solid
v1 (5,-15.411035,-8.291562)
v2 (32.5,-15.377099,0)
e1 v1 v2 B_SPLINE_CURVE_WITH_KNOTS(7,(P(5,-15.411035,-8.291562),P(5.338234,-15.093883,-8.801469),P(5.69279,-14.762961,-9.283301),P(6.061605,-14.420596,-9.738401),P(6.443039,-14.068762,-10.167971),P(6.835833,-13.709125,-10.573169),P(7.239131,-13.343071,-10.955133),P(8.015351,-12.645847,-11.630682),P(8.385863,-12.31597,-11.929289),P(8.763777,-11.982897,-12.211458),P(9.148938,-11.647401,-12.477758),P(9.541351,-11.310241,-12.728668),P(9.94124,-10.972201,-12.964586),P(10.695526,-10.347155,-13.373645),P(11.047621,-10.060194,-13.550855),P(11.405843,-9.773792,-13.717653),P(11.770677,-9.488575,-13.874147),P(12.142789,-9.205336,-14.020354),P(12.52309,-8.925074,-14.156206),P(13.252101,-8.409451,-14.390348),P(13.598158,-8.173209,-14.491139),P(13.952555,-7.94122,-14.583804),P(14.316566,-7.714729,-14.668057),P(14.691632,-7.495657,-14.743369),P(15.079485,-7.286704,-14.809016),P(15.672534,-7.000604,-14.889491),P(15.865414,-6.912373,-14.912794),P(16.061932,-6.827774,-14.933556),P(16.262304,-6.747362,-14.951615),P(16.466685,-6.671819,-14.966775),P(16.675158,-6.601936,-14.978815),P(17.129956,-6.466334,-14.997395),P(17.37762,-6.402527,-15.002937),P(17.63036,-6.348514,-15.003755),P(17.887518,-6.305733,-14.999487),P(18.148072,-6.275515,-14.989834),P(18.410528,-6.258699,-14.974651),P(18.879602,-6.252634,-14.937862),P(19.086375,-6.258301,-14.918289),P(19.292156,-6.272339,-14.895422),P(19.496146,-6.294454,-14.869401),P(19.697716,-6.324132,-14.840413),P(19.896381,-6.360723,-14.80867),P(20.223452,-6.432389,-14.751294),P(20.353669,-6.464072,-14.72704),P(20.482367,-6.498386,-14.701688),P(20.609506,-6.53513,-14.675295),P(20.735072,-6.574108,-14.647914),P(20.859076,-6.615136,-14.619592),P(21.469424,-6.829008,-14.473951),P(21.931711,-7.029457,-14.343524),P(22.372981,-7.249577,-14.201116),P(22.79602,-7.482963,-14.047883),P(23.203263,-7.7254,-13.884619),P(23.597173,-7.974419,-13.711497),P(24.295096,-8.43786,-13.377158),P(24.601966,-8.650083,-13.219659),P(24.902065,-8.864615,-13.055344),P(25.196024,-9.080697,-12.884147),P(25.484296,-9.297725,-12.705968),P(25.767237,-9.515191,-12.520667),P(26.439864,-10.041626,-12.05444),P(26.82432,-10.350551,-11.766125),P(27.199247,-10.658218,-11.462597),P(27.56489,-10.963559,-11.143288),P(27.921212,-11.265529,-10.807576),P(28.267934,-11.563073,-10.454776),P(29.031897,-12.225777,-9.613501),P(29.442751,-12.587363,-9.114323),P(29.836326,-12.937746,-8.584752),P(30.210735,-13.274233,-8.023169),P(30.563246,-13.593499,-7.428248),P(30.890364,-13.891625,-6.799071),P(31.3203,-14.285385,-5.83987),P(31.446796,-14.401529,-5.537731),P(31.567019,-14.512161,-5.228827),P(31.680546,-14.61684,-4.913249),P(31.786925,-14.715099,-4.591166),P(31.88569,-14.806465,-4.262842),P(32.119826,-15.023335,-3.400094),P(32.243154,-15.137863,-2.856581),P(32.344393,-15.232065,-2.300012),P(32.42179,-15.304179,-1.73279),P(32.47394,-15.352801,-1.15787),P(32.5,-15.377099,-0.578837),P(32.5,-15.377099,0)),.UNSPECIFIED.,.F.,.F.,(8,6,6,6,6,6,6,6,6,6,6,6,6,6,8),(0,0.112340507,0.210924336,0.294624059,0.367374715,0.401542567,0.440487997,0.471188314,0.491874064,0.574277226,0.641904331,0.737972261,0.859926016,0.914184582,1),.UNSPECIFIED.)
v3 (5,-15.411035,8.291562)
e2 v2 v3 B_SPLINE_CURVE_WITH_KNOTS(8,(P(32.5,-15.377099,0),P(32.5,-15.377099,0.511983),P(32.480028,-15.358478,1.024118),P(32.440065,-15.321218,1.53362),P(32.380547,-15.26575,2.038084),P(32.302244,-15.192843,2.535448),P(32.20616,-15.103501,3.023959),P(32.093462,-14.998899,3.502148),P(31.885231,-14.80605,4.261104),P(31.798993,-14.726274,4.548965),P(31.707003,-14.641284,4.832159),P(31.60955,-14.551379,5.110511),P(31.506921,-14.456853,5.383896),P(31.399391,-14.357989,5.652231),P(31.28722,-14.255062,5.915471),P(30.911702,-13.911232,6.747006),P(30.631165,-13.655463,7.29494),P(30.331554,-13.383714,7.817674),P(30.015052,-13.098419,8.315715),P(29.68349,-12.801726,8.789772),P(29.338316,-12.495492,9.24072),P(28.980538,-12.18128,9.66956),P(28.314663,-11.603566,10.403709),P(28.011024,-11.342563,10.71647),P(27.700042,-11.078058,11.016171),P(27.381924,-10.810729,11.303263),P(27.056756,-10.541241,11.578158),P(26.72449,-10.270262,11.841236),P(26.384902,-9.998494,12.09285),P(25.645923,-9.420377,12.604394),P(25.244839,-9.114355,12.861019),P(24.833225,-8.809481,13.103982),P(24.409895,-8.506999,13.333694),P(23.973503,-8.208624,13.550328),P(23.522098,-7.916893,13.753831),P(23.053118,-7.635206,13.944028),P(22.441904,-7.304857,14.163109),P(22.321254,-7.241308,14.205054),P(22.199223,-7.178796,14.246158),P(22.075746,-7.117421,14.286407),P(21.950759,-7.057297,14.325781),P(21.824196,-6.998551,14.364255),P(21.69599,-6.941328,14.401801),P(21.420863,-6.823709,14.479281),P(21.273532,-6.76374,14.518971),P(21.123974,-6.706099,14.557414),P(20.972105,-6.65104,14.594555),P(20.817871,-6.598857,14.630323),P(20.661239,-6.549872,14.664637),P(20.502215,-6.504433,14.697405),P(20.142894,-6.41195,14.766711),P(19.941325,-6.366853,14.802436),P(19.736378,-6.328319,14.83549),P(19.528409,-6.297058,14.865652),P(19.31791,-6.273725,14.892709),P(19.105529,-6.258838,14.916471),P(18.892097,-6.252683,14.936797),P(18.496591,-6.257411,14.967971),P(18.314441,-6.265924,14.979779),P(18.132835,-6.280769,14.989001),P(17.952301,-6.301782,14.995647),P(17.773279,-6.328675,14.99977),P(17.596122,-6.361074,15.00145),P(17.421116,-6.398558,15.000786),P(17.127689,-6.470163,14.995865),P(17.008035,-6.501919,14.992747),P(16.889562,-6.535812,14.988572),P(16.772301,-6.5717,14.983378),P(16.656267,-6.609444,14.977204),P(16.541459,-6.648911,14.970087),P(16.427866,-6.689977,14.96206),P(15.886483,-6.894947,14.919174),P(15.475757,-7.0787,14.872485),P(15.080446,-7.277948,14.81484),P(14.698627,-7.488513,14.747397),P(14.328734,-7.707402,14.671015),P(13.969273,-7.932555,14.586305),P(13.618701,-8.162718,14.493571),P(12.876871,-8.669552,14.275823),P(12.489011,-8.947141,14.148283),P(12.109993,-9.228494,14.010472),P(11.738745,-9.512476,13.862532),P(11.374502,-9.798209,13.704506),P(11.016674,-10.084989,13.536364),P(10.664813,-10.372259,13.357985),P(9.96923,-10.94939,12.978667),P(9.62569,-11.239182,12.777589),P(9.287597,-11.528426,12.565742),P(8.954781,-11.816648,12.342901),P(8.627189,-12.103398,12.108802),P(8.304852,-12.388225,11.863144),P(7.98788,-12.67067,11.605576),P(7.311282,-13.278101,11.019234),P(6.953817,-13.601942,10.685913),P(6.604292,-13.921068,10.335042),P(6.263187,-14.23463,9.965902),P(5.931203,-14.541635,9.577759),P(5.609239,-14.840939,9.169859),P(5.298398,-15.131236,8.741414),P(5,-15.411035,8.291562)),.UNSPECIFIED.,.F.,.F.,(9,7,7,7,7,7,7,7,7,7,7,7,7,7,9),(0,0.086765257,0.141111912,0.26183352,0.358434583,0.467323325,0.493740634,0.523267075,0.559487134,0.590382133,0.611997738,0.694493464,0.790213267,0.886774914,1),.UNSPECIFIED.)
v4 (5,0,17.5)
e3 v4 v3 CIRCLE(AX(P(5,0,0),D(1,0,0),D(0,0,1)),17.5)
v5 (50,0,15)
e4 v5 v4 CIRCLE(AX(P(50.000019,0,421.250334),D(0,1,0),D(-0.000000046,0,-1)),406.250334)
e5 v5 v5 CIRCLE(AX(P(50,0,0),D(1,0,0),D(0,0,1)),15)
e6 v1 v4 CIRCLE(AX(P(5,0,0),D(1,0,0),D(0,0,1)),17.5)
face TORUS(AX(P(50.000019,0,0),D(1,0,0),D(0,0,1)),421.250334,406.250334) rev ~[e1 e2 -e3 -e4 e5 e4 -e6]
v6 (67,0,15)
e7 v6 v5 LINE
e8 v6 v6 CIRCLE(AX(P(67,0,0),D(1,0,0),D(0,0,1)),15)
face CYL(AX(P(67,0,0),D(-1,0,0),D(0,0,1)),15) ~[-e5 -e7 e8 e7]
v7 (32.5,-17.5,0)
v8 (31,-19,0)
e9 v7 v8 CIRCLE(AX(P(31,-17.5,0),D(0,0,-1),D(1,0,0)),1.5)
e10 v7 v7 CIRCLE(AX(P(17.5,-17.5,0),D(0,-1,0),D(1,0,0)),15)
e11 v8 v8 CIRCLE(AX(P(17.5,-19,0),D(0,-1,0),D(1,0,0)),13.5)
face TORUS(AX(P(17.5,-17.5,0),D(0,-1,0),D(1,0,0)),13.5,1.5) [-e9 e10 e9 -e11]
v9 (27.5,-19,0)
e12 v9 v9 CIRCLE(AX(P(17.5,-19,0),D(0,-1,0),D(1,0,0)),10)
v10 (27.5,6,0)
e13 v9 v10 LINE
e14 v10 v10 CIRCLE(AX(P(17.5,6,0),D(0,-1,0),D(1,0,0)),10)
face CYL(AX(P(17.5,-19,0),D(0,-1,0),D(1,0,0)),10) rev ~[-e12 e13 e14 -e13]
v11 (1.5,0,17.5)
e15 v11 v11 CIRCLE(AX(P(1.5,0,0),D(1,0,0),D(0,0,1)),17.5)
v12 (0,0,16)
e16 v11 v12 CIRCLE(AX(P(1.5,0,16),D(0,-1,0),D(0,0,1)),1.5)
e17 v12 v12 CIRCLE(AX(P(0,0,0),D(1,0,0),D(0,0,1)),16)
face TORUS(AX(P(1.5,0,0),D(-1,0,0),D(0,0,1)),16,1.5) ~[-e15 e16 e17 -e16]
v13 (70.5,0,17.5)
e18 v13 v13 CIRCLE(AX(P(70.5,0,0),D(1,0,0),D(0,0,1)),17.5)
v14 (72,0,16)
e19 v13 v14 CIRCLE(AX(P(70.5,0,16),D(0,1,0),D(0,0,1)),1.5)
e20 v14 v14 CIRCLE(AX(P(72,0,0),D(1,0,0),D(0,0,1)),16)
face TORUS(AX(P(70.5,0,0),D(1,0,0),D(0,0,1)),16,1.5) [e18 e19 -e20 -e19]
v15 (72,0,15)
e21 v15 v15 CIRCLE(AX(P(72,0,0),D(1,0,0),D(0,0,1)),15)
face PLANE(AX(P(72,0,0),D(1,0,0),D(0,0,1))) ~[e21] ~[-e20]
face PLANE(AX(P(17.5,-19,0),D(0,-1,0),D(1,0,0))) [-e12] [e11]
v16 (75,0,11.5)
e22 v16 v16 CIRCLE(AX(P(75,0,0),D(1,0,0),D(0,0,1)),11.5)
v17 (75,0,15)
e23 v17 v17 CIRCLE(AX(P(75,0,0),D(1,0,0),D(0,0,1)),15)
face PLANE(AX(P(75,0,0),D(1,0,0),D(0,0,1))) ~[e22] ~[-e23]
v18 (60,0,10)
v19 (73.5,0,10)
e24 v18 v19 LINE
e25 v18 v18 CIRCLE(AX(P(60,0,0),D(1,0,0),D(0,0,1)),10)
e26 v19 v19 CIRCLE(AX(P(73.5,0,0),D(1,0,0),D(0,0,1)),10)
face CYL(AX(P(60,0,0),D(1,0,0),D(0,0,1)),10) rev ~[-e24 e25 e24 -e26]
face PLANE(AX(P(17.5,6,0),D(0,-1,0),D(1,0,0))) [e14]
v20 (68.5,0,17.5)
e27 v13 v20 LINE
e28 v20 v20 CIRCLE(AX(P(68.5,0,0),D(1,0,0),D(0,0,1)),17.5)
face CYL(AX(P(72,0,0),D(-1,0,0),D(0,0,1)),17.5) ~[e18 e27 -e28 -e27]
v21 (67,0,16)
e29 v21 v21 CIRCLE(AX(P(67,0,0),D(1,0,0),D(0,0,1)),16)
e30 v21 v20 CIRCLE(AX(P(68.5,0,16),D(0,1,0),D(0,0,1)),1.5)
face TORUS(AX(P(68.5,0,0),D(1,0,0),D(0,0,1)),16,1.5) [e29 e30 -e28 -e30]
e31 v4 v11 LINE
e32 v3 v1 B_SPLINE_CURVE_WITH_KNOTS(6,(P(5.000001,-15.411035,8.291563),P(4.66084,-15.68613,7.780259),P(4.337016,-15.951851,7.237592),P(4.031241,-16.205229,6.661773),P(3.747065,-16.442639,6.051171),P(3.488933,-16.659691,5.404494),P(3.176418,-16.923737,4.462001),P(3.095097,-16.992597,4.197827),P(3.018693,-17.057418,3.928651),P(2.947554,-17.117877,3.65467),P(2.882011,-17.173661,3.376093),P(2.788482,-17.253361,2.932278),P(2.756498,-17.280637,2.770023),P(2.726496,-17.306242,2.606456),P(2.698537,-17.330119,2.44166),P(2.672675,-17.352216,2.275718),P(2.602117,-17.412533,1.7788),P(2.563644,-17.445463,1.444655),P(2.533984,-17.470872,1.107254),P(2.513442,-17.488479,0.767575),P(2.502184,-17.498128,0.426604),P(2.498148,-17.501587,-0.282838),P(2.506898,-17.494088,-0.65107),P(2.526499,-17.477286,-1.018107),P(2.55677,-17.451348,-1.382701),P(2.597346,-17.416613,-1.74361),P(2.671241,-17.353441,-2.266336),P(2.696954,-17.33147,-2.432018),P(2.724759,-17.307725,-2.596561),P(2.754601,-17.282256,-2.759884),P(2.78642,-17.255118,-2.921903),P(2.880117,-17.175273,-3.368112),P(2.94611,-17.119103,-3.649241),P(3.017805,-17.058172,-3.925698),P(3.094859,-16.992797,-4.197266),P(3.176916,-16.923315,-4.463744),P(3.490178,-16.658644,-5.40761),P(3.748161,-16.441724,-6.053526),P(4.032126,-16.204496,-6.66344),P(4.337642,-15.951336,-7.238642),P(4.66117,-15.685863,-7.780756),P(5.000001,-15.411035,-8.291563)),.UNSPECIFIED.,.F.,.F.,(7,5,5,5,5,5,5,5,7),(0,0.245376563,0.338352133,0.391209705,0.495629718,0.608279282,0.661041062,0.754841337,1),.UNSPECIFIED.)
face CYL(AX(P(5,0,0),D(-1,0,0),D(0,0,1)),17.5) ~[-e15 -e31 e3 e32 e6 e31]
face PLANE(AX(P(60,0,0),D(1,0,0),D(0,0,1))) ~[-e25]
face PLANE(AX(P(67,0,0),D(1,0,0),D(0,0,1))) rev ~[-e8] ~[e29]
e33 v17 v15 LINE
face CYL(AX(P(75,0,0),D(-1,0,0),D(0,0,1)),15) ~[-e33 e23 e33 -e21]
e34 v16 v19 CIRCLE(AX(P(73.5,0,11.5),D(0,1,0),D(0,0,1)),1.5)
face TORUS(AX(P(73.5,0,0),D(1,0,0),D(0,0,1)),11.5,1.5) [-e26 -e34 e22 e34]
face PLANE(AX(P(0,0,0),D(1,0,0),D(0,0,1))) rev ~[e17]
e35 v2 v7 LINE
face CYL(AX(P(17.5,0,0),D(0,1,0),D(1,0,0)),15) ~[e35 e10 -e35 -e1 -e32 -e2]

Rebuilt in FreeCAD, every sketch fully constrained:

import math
import FreeCAD as App
import Part
import Sketcher

V = App.Vector
Q = App.Units.Quantity


def edges_at(feature, points):
    """Names of the edges that pass closest to the given points."""
    edges = feature.Shape.Edges
    near = lambda p: min(range(len(edges)), key=lambda i: edges[i].distToShape(Part.Vertex(*p))[0])
    return sorted({f"Edge{near(p) + 1}" for p in points})

doc = App.newDocument("Part")
params = doc.addObject("Spreadsheet::Sheet", "Params")
for row, (alias, value) in enumerate([
    ("sketch1_width", "60 mm"),
    ("sketch1_width2", "15 mm"),
    ("sketch1_width3", "3 mm"),
    ("sketch1_width4", "5 mm"),
    ("sketch1_width5", "17 mm"),
    ("revolution_angle", "360 deg"),
    ("sketch2_diameter", "30 mm"),
    ("pad1_length", "19 mm"),
    ("sketch3_diameter", "20 mm"),
    ("pocket1_length", "25 mm"),
    ("fillet_radius", "1.5 mm"),
    ("fillet2_radius", "1.5 mm"),
], start=1):
    params.set(f"A{row}", alias)
    params.set(f"B{row}", "=" + value)
    params.setAlias(f"B{row}", alias)

body = doc.addObject("PartDesign::Body", "Body")

sketch1 = body.newObject("Sketcher::SketchObject", "Sketch")
sketch1.AttachmentSupport = (doc.getObject("XZ_Plane"), [""])
sketch1.MapMode = "FlatFace"
sketch1.addGeometry(Part.LineSegment(V(0, 17.5, 0), V(0, 0, 0)), False)
sketch1.addGeometry(Part.LineSegment(V(0, 0, 0), V(60, 0, 0)), False)
sketch1.addGeometry(Part.LineSegment(V(60, 0, 0), V(60, 10, 0)), False)
sketch1.addGeometry(Part.LineSegment(V(60, 10, 0), V(75, 10, 0)), False)
sketch1.addGeometry(Part.LineSegment(V(75, 10, 0), V(75, 15, 0)), False)
sketch1.addGeometry(Part.LineSegment(V(75, 15, 0), V(72, 15, 0)), False)
sketch1.addGeometry(Part.LineSegment(V(72, 15, 0), V(72, 17.5, 0)), False)
sketch1.addGeometry(Part.LineSegment(V(72, 17.5, 0), V(67, 17.5, 0)), False)
sketch1.addGeometry(Part.LineSegment(V(67, 17.5, 0), V(67, 15, 0)), False)
sketch1.addGeometry(Part.LineSegment(V(67, 15, 0), V(50, 15, 0)), False)
sketch1.addGeometry(Part.ArcOfCircle(Part.Circle(V(50.000019, 421.250334, 0), V(0, 0, 1), 406.250334), math.radians(-96.359658), math.radians(-90.000003)), False)
sketch1.addGeometry(Part.LineSegment(V(5, 17.5, 0), V(0, 17.5, 0)), False)
sketch1.addConstraint(Sketcher.Constraint("Coincident", 0, 2, 1, 1))
sketch1.addConstraint(Sketcher.Constraint("Coincident", 1, 2, 2, 1))
sketch1.addConstraint(Sketcher.Constraint("Coincident", 2, 2, 3, 1))
sketch1.addConstraint(Sketcher.Constraint("Coincident", 3, 2, 4, 1))
sketch1.addConstraint(Sketcher.Constraint("Coincident", 4, 2, 5, 1))
sketch1.addConstraint(Sketcher.Constraint("Coincident", 5, 2, 6, 1))
sketch1.addConstraint(Sketcher.Constraint("Coincident", 6, 2, 7, 1))
sketch1.addConstraint(Sketcher.Constraint("Coincident", 7, 2, 8, 1))
sketch1.addConstraint(Sketcher.Constraint("Coincident", 8, 2, 9, 1))
sketch1.addConstraint(Sketcher.Constraint("Tangent", 9, 2, 10, 2))
sketch1.addConstraint(Sketcher.Constraint("Coincident", 10, 1, 11, 1))
sketch1.addConstraint(Sketcher.Constraint("Coincident", 11, 2, 0, 1))
sketch1.addConstraint(Sketcher.Constraint("Vertical", 0))
sketch1.addConstraint(Sketcher.Constraint("Horizontal", 1))
sketch1.addConstraint(Sketcher.Constraint("Vertical", 2))
sketch1.addConstraint(Sketcher.Constraint("Horizontal", 3))
sketch1.addConstraint(Sketcher.Constraint("Vertical", 4))
sketch1.addConstraint(Sketcher.Constraint("Horizontal", 5))
sketch1.addConstraint(Sketcher.Constraint("Vertical", 6))
sketch1.addConstraint(Sketcher.Constraint("Horizontal", 7))
sketch1.addConstraint(Sketcher.Constraint("Vertical", 8))
sketch1.addConstraint(Sketcher.Constraint("Horizontal", 9))
sketch1.addConstraint(Sketcher.Constraint("Horizontal", 11))
sketch1.addConstraint(Sketcher.Constraint("Coincident", 0, 2, -1, 1))
sketch1.addConstraint(Sketcher.Constraint("Horizontal", 5, 2, 8, 2))
sketch1.addConstraint(Sketcher.Constraint("Horizontal", 7, 2, 10, 1))
sketch1.addConstraint(Sketcher.Constraint("Equal", 7, 11))
sketch1.addConstraint(Sketcher.Constraint("Equal", 11, 4))
sketch1.addConstraint(Sketcher.Constraint("DistanceX", 1, 1, 1, 2, Q("60 mm")))
sketch1.addConstraint(Sketcher.Constraint("DistanceX", 3, 1, 3, 2, Q("15 mm")))
sketch1.addConstraint(Sketcher.Constraint("DistanceX", 5, 2, 5, 1, Q("3 mm")))
sketch1.addConstraint(Sketcher.Constraint("DistanceX", 7, 2, 7, 1, Q("5 mm")))
sketch1.addConstraint(Sketcher.Constraint("DistanceX", 9, 2, 9, 1, Q("17 mm")))
sketch1.addConstraint(Sketcher.Constraint("DistanceY", 2, 1, 2, 2, Q("10 mm")))
sketch1.addConstraint(Sketcher.Constraint("DistanceY", 0, 2, 0, 1, Q("17.5 mm")))
sketch1.setExpression("Constraints[28]", "Params.sketch1_width")
sketch1.setExpression("Constraints[29]", "Params.sketch1_width2")
sketch1.setExpression("Constraints[30]", "Params.sketch1_width3")
sketch1.setExpression("Constraints[31]", "Params.sketch1_width4")
sketch1.setExpression("Constraints[32]", "Params.sketch1_width5")
revolution = body.newObject("PartDesign::Revolution", "Revolution")
revolution.Profile = sketch1
revolution.ReferenceAxis = (sketch1, ["H_Axis"])
revolution.setExpression("Angle", "Params.revolution_angle")

sketch2 = body.newObject("Sketcher::SketchObject", "Sketch001")
sketch2.AttachmentSupport = (doc.getObject("XZ_Plane"), [""])
sketch2.MapMode = "FlatFace"
sketch2.addGeometry(Part.Circle(V(17.5, 0, 0), V(0, 0, 1), 15), False)
sketch2.addConstraint(Sketcher.Constraint("PointOnObject", 0, 3, -1))
sketch2.addConstraint(Sketcher.Constraint("Diameter", 0, Q("30 mm")))
sketch2.addConstraint(Sketcher.Constraint("DistanceX", -1, 1, 0, 3, Q("17.5 mm")))
sketch2.setExpression("Constraints[1]", "Params.sketch2_diameter")
pad1 = body.newObject("PartDesign::Pad", "Pad")
pad1.Profile = sketch2
pad1.setExpression("Length", "Params.pad1_length")

sketch3 = body.newObject("Sketcher::SketchObject", "Sketch002")
sketch3.AttachmentSupport = (doc.getObject("XZ_Plane"), [""])
sketch3.MapMode = "FlatFace"
sketch3.AttachmentOffset = App.Placement(V(0, 0, 19), App.Rotation())
sketch3.addGeometry(Part.Circle(V(17.5, 0, 0), V(0, 0, 1), 10), False)
sketch3.addConstraint(Sketcher.Constraint("PointOnObject", 0, 3, -1))
sketch3.addConstraint(Sketcher.Constraint("Diameter", 0, Q("20 mm")))
sketch3.addConstraint(Sketcher.Constraint("DistanceX", -1, 1, 0, 3, Q("17.5 mm")))
sketch3.setExpression("Constraints[1]", "Params.sketch3_diameter")
pocket1 = body.newObject("PartDesign::Pocket", "Pocket")
pocket1.Profile = sketch3
pocket1.setExpression("Length", "Params.pocket1_length")
doc.recompute()

fillet = body.newObject("PartDesign::Fillet", "Fillet")
fillet.Base = (pocket1, edges_at(pocket1, [(0, 0, -17.5), (2.5, -19, 0)]))
fillet.setExpression("Radius", "Params.fillet_radius")
doc.recompute()

fillet2 = body.newObject("PartDesign::Fillet", "Fillet001")
fillet2.Base = (fillet, edges_at(fillet, [(67, 0, -17.5), (72, 0, -17.5), (75, 0, -10)]))
fillet2.setExpression("Radius", "Params.fillet2_radius")

doc.recompute()
